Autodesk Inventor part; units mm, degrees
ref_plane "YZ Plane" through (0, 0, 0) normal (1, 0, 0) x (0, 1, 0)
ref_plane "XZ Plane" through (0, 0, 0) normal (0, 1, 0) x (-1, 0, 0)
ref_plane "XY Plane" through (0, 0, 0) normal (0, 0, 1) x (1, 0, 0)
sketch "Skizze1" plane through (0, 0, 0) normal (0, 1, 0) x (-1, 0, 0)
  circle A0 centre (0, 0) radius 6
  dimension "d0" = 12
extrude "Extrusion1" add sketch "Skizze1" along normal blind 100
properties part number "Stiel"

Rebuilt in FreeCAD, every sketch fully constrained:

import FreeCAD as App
import Part
import Sketcher

doc = App.newDocument("Part")
body = doc.addObject("PartDesign::Body", "Body")

sketch1 = body.newObject("Sketcher::SketchObject", "Sketch")
sketch1.AttachmentSupport = (doc.getObject("XZ_Plane"), [""])
sketch1.MapMode = "FlatFace"
sketch1.addGeometry(Part.Circle(App.Vector(0, 0, 0), App.Vector(0, 0, 1), 6), False)
sketch1.addConstraint([
    Sketcher.Constraint("Coincident", 0, 3, -1, 1),
    Sketcher.Constraint("Diameter", 0, 12.0),
])
pad1 = body.newObject("PartDesign::Pad", "Pad")
pad1.Profile = sketch1
pad1.Length = 100
pad1.Reversed = True

doc.recompute()
